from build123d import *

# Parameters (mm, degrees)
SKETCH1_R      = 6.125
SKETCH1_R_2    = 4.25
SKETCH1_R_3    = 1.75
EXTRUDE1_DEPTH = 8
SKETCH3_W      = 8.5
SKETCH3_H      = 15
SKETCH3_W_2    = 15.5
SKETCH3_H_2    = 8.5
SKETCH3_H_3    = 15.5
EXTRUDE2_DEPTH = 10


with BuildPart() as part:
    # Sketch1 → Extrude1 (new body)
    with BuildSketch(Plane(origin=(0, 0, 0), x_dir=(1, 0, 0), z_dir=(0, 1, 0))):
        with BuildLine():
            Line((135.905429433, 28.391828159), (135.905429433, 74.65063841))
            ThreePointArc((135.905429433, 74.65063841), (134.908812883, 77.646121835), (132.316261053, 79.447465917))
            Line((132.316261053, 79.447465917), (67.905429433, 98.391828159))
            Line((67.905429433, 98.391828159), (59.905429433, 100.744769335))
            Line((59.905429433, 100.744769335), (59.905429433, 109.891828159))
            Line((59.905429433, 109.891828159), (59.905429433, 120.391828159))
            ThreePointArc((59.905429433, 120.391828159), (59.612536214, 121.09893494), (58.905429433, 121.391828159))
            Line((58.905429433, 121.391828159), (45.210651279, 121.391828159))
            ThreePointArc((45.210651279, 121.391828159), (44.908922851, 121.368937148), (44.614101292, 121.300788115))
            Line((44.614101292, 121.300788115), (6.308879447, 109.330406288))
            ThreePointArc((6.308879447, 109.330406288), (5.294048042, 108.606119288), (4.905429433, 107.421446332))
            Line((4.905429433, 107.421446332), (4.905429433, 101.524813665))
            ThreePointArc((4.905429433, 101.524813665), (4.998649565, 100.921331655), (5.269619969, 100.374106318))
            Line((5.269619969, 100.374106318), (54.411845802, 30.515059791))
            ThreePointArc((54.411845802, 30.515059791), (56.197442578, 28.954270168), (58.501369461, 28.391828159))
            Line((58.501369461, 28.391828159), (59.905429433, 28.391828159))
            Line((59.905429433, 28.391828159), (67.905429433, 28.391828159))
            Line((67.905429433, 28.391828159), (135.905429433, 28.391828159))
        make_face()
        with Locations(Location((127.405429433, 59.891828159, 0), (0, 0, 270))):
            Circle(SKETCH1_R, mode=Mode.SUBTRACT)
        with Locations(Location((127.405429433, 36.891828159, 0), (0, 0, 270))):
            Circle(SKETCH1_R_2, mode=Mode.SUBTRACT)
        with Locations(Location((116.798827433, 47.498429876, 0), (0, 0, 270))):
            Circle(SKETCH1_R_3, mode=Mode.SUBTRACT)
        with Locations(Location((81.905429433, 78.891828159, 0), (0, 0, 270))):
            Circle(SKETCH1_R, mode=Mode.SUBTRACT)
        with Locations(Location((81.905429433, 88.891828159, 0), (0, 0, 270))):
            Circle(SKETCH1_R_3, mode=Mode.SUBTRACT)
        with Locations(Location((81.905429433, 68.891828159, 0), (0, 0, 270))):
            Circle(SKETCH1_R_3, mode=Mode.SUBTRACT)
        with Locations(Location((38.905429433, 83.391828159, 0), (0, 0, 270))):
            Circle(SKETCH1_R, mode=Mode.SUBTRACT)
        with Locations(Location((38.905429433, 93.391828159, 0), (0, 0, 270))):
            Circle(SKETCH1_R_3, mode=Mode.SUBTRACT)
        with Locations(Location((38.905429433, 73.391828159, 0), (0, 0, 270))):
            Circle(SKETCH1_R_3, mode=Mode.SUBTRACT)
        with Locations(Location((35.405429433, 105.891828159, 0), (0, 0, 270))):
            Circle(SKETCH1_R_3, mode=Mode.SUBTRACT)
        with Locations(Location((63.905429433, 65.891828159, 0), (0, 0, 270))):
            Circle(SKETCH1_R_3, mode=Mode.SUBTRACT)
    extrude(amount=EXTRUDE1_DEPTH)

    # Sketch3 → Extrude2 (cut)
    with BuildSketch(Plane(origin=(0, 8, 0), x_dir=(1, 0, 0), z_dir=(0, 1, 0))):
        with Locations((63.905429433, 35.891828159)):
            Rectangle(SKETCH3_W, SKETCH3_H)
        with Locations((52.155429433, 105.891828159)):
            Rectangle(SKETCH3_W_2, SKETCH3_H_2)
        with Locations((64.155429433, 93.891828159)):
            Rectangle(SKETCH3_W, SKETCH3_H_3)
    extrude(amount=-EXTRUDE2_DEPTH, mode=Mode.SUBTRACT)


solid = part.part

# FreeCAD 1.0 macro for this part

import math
import FreeCAD as App
import Part
import Sketcher
from FreeCAD import Vector
Q = App.Units.Quantity

doc = App.newDocument("Part")
body = doc.addObject("PartDesign::Body", "Body")

sketch1 = body.newObject("Sketcher::SketchObject", "Sketch")
sketch1.AttachmentSupport = (doc.getObject("XZ_Plane"), [""])
sketch1.MapMode = "FlatFace"
sketch1.addGeometry(Part.LineSegment(Vector(135.9, -28.4, 0), Vector(135.9, -74.7, 0)), False)
sketch1.addGeometry(Part.ArcOfCircle(Part.Circle(Vector(130.9, -74.7, 0), Vector(0, 0, 1), 5), math.radians(-74), math.radians(0)), False)
sketch1.addGeometry(Part.LineSegment(Vector(132.3, -79.4, 0), Vector(67.9, -98.4, 0)), False)
sketch1.addGeometry(Part.LineSegment(Vector(67.9, -98.4, 0), Vector(59.9, -100.7, 0)), False)
sketch1.addGeometry(Part.LineSegment(Vector(59.9, -100.7, 0), Vector(59.9, -120.4, 0)), False)
sketch1.addGeometry(Part.ArcOfCircle(Part.Circle(Vector(58.9, -120.4, 0), Vector(0, 0, 1), 1), math.radians(-90), math.radians(0)), False)
sketch1.addGeometry(Part.LineSegment(Vector(58.9, -121.4, 0), Vector(45.2, -121.4, 0)), False)
sketch1.addGeometry(Part.ArcOfCircle(Part.Circle(Vector(45.2, -119.4, 0), Vector(0, 0, 1), 2), math.radians(-107.35), math.radians(-90)), False)
sketch1.addGeometry(Part.LineSegment(Vector(44.6, -121.3, 0), Vector(6.3, -109.3, 0)), False)
sketch1.addGeometry(Part.ArcOfCircle(Part.Circle(Vector(6.9, -107.4, 0), Vector(0, 0, 1), 2), math.radians(180), math.radians(253)), False)
sketch1.addGeometry(Part.LineSegment(Vector(4.9, -107.4, 0), Vector(4.9, -101.5, 0)), False)
sketch1.addGeometry(Part.ArcOfCircle(Part.Circle(Vector(6.9, -101.5, 0), Vector(0, 0, 1), 2), math.radians(145), math.radians(180)), False)
sketch1.addGeometry(Part.LineSegment(Vector(5.3, -100.4, 0), Vector(54.4, -30.5, 0)), False)
sketch1.addGeometry(Part.ArcOfCircle(Part.Circle(Vector(58.5, -33.4, 0), Vector(0, 0, 1), 5), math.radians(90), math.radians(145)), False)
sketch1.addGeometry(Part.LineSegment(Vector(58.5, -28.4, 0), Vector(135.9, -28.4, 0)), False)
sketch1.addGeometry(Part.Circle(Vector(63.9, -65.9, 0), Vector(0, 0, 1), 1.8), False)
sketch1.addGeometry(Part.Circle(Vector(81.9, -68.9, 0), Vector(0, 0, 1), 1.8), False)
sketch1.addGeometry(Part.Circle(Vector(127.4, -36.9, 0), Vector(0, 0, 1), 4.2), False)
sketch1.addGeometry(Part.Circle(Vector(116.8, -47.5, 0), Vector(0, 0, 1), 1.8), False)
sketch1.addGeometry(Part.Circle(Vector(127.4, -59.9, 0), Vector(0, 0, 1), 6.1), False)
sketch1.addGeometry(Part.Circle(Vector(38.9, -73.4, 0), Vector(0, 0, 1), 1.8), False)
sketch1.addGeometry(Part.Circle(Vector(38.9, -83.4, 0), Vector(0, 0, 1), 6.1), False)
sketch1.addGeometry(Part.Circle(Vector(81.9, -78.9, 0), Vector(0, 0, 1), 6.1), False)
sketch1.addGeometry(Part.Circle(Vector(38.9, -93.4, 0), Vector(0, 0, 1), 1.8), False)
sketch1.addGeometry(Part.Circle(Vector(35.4, -105.9, 0), Vector(0, 0, 1), 1.8), False)
sketch1.addGeometry(Part.Circle(Vector(81.9, -88.9, 0), Vector(0, 0, 1), 1.8), False)
sketch1.addConstraint(Sketcher.Constraint("Tangent", 0, 2, 1, 2))
sketch1.addConstraint(Sketcher.Constraint("Tangent", 1, 1, 2, 1))
sketch1.addConstraint(Sketcher.Constraint("Coincident", 2, 2, 3, 1))
sketch1.addConstraint(Sketcher.Constraint("Coincident", 3, 2, 4, 1))
sketch1.addConstraint(Sketcher.Constraint("Tangent", 4, 2, 5, 2))
sketch1.addConstraint(Sketcher.Constraint("Tangent", 5, 1, 6, 1))
sketch1.addConstraint(Sketcher.Constraint("Tangent", 6, 2, 7, 2))
sketch1.addConstraint(Sketcher.Constraint("Tangent", 7, 1, 8, 1))
sketch1.addConstraint(Sketcher.Constraint("Tangent", 8, 2, 9, 2))
sketch1.addConstraint(Sketcher.Constraint("Tangent", 9, 1, 10, 1))
sketch1.addConstraint(Sketcher.Constraint("Tangent", 10, 2, 11, 2))
sketch1.addConstraint(Sketcher.Constraint("Tangent", 11, 1, 12, 1))
sketch1.addConstraint(Sketcher.Constraint("Tangent", 12, 2, 13, 2))
sketch1.addConstraint(Sketcher.Constraint("Tangent", 13, 1, 14, 1))
sketch1.addConstraint(Sketcher.Constraint("Coincident", 14, 2, 0, 1))
sketch1.addConstraint(Sketcher.Constraint("Vertical", 0))
sketch1.addConstraint(Sketcher.Constraint("Vertical", 4))
sketch1.addConstraint(Sketcher.Constraint("Horizontal", 6))
sketch1.addConstraint(Sketcher.Constraint("Vertical", 10))
sketch1.addConstraint(Sketcher.Constraint("Horizontal", 14))
sketch1.addConstraint(Sketcher.Constraint("Equal", 7, 9))
sketch1.addConstraint(Sketcher.Constraint("Equal", 9, 11))
sketch1.addConstraint(Sketcher.Constraint("Equal", 1, 13))
sketch1.addConstraint(Sketcher.Constraint("Equal", 15, 16))
sketch1.addConstraint(Sketcher.Constraint("Equal", 16, 18))
sketch1.addConstraint(Sketcher.Constraint("Equal", 18, 20))
sketch1.addConstraint(Sketcher.Constraint("Equal", 19, 21))
sketch1.addConstraint(Sketcher.Constraint("Equal", 21, 22))
sketch1.addConstraint(Sketcher.Constraint("Equal", 20, 23))
sketch1.addConstraint(Sketcher.Constraint("Equal", 23, 24))
sketch1.addConstraint(Sketcher.Constraint("Equal", 24, 25))
sketch1.addConstraint(Sketcher.Constraint("Parallel", 2, 3))
sketch1.addConstraint(Sketcher.Constraint("Vertical", 17, 3, 19, 3))
sketch1.addConstraint(Sketcher.Constraint("Vertical", 20, 3, 21, 3))
sketch1.addConstraint(Sketcher.Constraint("Vertical", 16, 3, 22, 3))
sketch1.addConstraint(Sketcher.Constraint("Vertical", 21, 3, 23, 3))
sketch1.addConstraint(Sketcher.Constraint("Vertical", 22, 3, 25, 3))
sketch1.addConstraint(Sketcher.Constraint("Radius", 1, Q("5 mm")))
sketch1.addConstraint(Sketcher.Constraint("Radius", 5, Q("1 mm")))
sketch1.addConstraint(Sketcher.Constraint("Radius", 7, Q("2 mm")))
sketch1.addConstraint(Sketcher.Constraint("Diameter", 15, Q("3.5 mm")))
sketch1.addConstraint(Sketcher.Constraint("Diameter", 17, Q("8.5 mm")))
sketch1.addConstraint(Sketcher.Constraint("Diameter", 19, Q("12.25 mm")))
sketch1.addConstraint(Sketcher.Constraint("DistanceX", 5, 3, 1, 3, Q("72 mm")))
sketch1.addConstraint(Sketcher.Constraint("DistanceX", 9, 3, 5, 3, Q("52 mm")))
sketch1.addConstraint(Sketcher.Constraint("DistanceY", 5, 3, 13, 3, Q("87 mm")))
sketch1.addConstraint(Sketcher.Constraint("DistanceX", 5, 3, 15, 3, Q("5 mm")))
sketch1.addConstraint(Sketcher.Constraint("DistanceX", 15, 3, 16, 3, Q("18 mm")))
sketch1.addConstraint(Sketcher.Constraint("DistanceY", 16, 3, 15, 3, Q("3 mm")))
sketch1.addConstraint(Sketcher.Constraint("DistanceY", 16, 3, 17, 3, Q("32 mm")))
sketch1.addConstraint(Sketcher.Constraint("DistanceY", 19, 3, 17, 3, Q("23 mm")))
sketch1.addConstraint(Sketcher.Constraint("DistanceX", 20, 3, 15, 3, Q("25 mm")))
sketch1.addConstraint(Sketcher.Constraint("DistanceY", 20, 3, 13, 3, Q("40 mm")))
sketch1.addConstraint(Sketcher.Constraint("DistanceY", 21, 3, 20, 3, Q("10 mm")))
sketch1.addConstraint(Sketcher.Constraint("DistanceY", 22, 3, 16, 3, Q("10 mm")))
sketch1.addConstraint(Sketcher.Constraint("DistanceY", 23, 3, 21, 3, Q("10 mm")))
sketch1.addConstraint(Sketcher.Constraint("DistanceY", 25, 3, 22, 3, Q("10 mm")))
sketch1.addConstraint(Sketcher.Constraint("DistanceX", 2, 2, 25, 3, Q("14 mm")))
sketch1.addConstraint(Sketcher.Constraint("DistanceY", 5, 3, 2, 2, Q("22 mm")))
sketch1.addConstraint(Sketcher.Constraint("DistanceY", 15, 3, 13, 3, Q("32.5 mm")))
sketch1.addConstraint(Sketcher.Constraint("DistanceX", 17, 3, 1, 3, Q("3.5 mm")))
sketch1.addConstraint(Sketcher.Constraint("DistanceX", 24, 3, 23, 3, Q("3.5 mm")))
sketch1.addConstraint(Sketcher.Constraint("DistanceY", 24, 3, 23, 3, Q("12.5 mm")))
sketch1.addConstraint(Sketcher.Constraint("DistanceX", 6, 2, 6, 1, Q("13.694778 mm")))
sketch1.addConstraint(Sketcher.Constraint("DistanceX", 14, 1, 14, 2, Q("77.40406 mm")))
sketch1.addConstraint(Sketcher.Constraint("DistanceY", 0, 2, 0, 1, Q("46.25881 mm")))
sketch1.addConstraint(Sketcher.Constraint("DistanceX", -1, 1, 7, 1, Q("44.614101 mm")))
sketch1.addConstraint(Sketcher.Constraint("DistanceX", 18, 3, 17, 3, Q("10.606602 mm")))
sketch1.addConstraint(Sketcher.Constraint("DistanceY", 18, 3, 17, 3, Q("10.606602 mm")))
sketch1.addConstraint(Sketcher.Constraint("DistanceY", 8, 2, 11, 1, Q("8.9563 mm")))
sketch1.addConstraint(Sketcher.Constraint("DistanceX", -1, 1, 1, 3, Q("130.905429 mm")))
sketch1.addConstraint(Sketcher.Constraint("DistanceY", 1, 3, -1, 1, Q("74.650638 mm")))
pad1 = body.newObject("PartDesign::Pad", "Pad")
pad1.Profile = sketch1
pad1.Length = 8
pad1.Reversed = True

sketch2 = body.newObject("Sketcher::SketchObject", "Sketch001")
sketch2.AttachmentSupport = (doc.getObject("XZ_Plane"), [""])
sketch2.MapMode = "FlatFace"
sketch2.AttachmentOffset = App.Placement(Vector(0, 0, -8), App.Rotation())
sketch2.addGeometry(Part.LineSegment(Vector(60, -43, 0), Vector(60, -28, 0)), False)
sketch2.addGeometry(Part.LineSegment(Vector(60, -28, 0), Vector(68, -28, 0)), False)
sketch2.addGeometry(Part.LineSegment(Vector(68, -28, 0), Vector(68, -43, 0)), False)
sketch2.addGeometry(Part.LineSegment(Vector(68, -43, 0), Vector(60, -43, 0)), False)
sketch2.addGeometry(Part.LineSegment(Vector(44, -110, 0), Vector(44, -102, 0)), False)
sketch2.addGeometry(Part.LineSegment(Vector(44, -102, 0), Vector(60, -102, 0)), False)
sketch2.addGeometry(Part.LineSegment(Vector(60, -102, 0), Vector(60, -110, 0)), False)
sketch2.addGeometry(Part.LineSegment(Vector(60, -110, 0), Vector(44, -110, 0)), False)
sketch2.addGeometry(Part.LineSegment(Vector(60, -102, 0), Vector(60, -86, 0)), False)
sketch2.addGeometry(Part.LineSegment(Vector(60, -86, 0), Vector(68, -86, 0)), False)
sketch2.addGeometry(Part.LineSegment(Vector(68, -86, 0), Vector(68, -102, 0)), False)
sketch2.addGeometry(Part.LineSegment(Vector(68, -102, 0), Vector(60, -102, 0)), False)
sketch2.addConstraint(Sketcher.Constraint("Coincident", 0, 2, 1, 1))
sketch2.addConstraint(Sketcher.Constraint("Coincident", 1, 2, 2, 1))
sketch2.addConstraint(Sketcher.Constraint("Coincident", 2, 2, 3, 1))
sketch2.addConstraint(Sketcher.Constraint("Coincident", 3, 2, 0, 1))
sketch2.addConstraint(Sketcher.Constraint("Coincident", 4, 2, 5, 1))
sketch2.addConstraint(Sketcher.Constraint("Coincident", 5, 2, 6, 1))
sketch2.addConstraint(Sketcher.Constraint("Coincident", 6, 2, 7, 1))
sketch2.addConstraint(Sketcher.Constraint("Coincident", 7, 2, 4, 1))
sketch2.addConstraint(Sketcher.Constraint("Coincident", 8, 2, 9, 1))
sketch2.addConstraint(Sketcher.Constraint("Coincident", 9, 2, 10, 1))
sketch2.addConstraint(Sketcher.Constraint("Coincident", 10, 2, 11, 1))
sketch2.addConstraint(Sketcher.Constraint("Coincident", 11, 2, 8, 1))
sketch2.addConstraint(Sketcher.Constraint("Vertical", 0))
sketch2.addConstraint(Sketcher.Constraint("Horizontal", 1))
sketch2.addConstraint(Sketcher.Constraint("Vertical", 2))
sketch2.addConstraint(Sketcher.Constraint("Horizontal", 3))
sketch2.addConstraint(Sketcher.Constraint("Vertical", 4))
sketch2.addConstraint(Sketcher.Constraint("Horizontal", 5))
sketch2.addConstraint(Sketcher.Constraint("Vertical", 6))
sketch2.addConstraint(Sketcher.Constraint("Horizontal", 7))
sketch2.addConstraint(Sketcher.Constraint("Vertical", 8))
sketch2.addConstraint(Sketcher.Constraint("Horizontal", 9))
sketch2.addConstraint(Sketcher.Constraint("Vertical", 10))
sketch2.addConstraint(Sketcher.Constraint("Horizontal", 11))
sketch2.addConstraint(Sketcher.Constraint("Coincident", 11, 2, 5, 2))
sketch2.addConstraint(Sketcher.Constraint("Equal", 3, 9))
sketch2.addConstraint(Sketcher.Constraint("Equal", 11, 4))
sketch2.addConstraint(Sketcher.Constraint("Equal", 7, 8))
sketch2.addConstraint(Sketcher.Constraint("DistanceY", 0, 1, 0, 2, Q("15 mm")))
sketch2.addConstraint(Sketcher.Constraint("DistanceX", 1, 1, 1, 2, Q("8.5 mm")))
sketch2.addConstraint(Sketcher.Constraint("DistanceX", 5, 1, 5, 2, Q("15.5 mm")))
sketch2.addConstraint(Sketcher.Constraint("DistanceX", 4, 2, 3, 2, Q("15.25 mm")))
sketch2.addConstraint(Sketcher.Constraint("DistanceY", 4, 2, 3, 2, Q("58.25 mm")))
sketch2.addConstraint(Sketcher.Constraint("DistanceX", -1, 1, 0, 2, Q("59.655429 mm")))
sketch2.addConstraint(Sketcher.Constraint("DistanceY", 0, 2, -1, 1, Q("28.391828 mm")))
pocket1 = body.newObject("PartDesign::Pocket", "Pocket")
pocket1.Profile = sketch2
pocket1.Length = 10
pocket1.Reversed = True

doc.recompute()
